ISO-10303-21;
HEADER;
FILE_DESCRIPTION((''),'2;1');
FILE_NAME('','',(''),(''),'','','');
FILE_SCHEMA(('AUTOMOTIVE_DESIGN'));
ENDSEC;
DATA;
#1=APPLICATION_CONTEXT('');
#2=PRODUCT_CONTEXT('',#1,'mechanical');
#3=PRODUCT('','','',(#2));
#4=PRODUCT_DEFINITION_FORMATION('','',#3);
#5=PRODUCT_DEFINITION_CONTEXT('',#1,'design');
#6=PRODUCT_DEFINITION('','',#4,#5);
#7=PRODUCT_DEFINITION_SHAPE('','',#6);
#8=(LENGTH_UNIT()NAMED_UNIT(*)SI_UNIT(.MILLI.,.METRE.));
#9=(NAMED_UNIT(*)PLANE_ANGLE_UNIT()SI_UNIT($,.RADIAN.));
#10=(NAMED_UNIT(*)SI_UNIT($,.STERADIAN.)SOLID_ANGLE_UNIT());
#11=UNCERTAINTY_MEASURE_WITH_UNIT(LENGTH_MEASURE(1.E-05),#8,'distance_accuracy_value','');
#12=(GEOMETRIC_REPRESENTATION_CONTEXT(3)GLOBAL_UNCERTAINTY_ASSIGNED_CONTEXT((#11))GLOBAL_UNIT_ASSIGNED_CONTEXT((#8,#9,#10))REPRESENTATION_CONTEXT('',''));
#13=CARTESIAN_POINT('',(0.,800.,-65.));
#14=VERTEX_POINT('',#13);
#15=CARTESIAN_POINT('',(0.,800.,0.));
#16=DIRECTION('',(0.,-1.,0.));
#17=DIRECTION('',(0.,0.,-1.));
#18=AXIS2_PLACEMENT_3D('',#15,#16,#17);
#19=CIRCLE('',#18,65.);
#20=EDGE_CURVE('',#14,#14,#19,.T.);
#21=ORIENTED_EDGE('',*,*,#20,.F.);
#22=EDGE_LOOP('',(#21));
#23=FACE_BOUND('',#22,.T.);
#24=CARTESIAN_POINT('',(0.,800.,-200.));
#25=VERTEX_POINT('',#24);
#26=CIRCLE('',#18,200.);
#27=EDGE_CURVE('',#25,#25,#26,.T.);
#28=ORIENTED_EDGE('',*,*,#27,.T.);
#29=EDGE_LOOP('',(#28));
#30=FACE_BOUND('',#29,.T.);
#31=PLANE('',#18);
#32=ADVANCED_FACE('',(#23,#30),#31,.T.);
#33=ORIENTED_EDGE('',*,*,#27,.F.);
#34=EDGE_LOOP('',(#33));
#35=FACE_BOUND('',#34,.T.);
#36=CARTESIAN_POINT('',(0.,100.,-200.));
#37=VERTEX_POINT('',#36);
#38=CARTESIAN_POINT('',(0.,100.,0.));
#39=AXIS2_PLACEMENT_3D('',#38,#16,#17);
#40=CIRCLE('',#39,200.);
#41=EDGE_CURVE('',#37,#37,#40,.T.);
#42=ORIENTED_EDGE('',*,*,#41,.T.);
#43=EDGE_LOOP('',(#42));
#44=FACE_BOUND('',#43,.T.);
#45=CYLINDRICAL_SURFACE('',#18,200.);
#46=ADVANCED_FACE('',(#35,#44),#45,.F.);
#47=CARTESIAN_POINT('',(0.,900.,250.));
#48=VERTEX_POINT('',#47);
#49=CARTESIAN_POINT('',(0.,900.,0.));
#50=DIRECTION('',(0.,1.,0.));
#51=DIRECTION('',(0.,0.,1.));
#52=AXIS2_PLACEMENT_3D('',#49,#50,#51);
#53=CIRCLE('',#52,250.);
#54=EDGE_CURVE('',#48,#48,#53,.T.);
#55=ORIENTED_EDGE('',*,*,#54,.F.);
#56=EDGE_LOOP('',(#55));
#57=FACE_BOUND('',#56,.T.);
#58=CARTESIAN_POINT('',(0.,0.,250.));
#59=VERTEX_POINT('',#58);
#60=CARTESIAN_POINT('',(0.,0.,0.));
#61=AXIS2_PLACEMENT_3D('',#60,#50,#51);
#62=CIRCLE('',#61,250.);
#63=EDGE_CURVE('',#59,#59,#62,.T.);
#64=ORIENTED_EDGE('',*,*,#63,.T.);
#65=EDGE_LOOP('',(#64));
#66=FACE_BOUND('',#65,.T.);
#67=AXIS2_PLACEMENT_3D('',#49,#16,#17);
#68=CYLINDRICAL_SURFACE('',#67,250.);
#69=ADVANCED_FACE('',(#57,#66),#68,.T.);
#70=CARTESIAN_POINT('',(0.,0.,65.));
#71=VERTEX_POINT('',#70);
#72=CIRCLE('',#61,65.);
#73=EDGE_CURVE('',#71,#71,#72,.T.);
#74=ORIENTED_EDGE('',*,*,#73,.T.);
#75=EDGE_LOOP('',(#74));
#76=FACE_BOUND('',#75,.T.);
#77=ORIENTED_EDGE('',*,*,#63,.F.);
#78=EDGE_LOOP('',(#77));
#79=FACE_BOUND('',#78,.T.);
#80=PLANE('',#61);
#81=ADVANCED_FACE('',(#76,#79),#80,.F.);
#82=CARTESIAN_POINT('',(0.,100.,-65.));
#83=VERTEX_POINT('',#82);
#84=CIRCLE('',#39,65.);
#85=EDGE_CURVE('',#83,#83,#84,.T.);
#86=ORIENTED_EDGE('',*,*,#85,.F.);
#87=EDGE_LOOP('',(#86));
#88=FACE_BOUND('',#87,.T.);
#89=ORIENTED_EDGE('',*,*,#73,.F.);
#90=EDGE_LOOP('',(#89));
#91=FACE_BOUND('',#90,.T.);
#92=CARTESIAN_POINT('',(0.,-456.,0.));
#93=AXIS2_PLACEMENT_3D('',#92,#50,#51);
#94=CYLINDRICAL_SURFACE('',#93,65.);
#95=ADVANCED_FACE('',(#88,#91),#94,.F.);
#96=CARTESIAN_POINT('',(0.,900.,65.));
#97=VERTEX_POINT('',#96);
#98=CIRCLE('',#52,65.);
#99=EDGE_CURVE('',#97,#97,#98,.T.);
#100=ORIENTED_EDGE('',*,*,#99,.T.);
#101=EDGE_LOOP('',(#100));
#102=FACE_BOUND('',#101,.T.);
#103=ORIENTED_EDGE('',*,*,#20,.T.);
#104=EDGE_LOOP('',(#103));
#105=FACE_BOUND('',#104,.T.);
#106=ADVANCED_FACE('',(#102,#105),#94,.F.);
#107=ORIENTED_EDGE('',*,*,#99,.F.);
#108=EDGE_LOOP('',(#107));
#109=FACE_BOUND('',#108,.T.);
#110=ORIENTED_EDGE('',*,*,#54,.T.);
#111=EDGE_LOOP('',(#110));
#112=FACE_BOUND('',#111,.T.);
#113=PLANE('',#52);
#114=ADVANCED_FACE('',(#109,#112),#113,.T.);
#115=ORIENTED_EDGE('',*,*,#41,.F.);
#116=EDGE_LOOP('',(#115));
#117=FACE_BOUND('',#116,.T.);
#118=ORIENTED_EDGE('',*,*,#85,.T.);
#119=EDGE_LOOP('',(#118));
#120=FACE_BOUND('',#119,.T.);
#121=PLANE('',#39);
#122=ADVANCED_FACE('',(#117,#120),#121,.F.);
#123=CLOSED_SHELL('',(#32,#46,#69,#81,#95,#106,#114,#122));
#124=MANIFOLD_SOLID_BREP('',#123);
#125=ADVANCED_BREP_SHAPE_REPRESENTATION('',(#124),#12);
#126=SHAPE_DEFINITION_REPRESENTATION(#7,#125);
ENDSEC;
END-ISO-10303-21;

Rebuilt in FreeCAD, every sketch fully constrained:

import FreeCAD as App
import Part
import Sketcher

doc = App.newDocument("Part")
params = doc.addObject("Spreadsheet::Sheet", "Params")
for row, (alias, value) in enumerate([
    ("sketch1_diameter", "500 mm"),
    ("pad1_length", "900 mm"),
    ("sketch2_diameter", "400 mm"),
    ("pocket1_length", "700 mm"),
    ("sketch3_diameter", "130 mm"),
    ("pocket2_length", "1356 mm"),
], start=1):
    params.set(f"A{row}", alias)
    params.set(f"B{row}", "=" + value)
    params.setAlias(f"B{row}", alias)

body = doc.addObject("PartDesign::Body", "Body")

# Sketch on XZ plane
sketch1 = body.newObject("Sketcher::SketchObject", "Sketch")
sketch1.AttachmentSupport = (doc.getObject("XZ_Plane"), [""])
sketch1.MapMode = "FlatFace"
sketch1.addGeometry(Part.Circle(App.Vector(0, 0, 0), App.Vector(0, 0, 1), 250), False)
sketch1.addConstraint([
    Sketcher.Constraint("Coincident", 0, 3, -1, 1),
    Sketcher.Constraint("Diameter", 0, 500.0),
])
sketch1.setExpression("Constraints[1]", "Params.sketch1_diameter")
pad1 = body.newObject("PartDesign::Pad", "Pad")
pad1.Profile = sketch1
pad1.setExpression("Length", "Params.pad1_length")
pad1.Reversed = True

# Sketch on XZ plane
sketch2 = body.newObject("Sketcher::SketchObject", "Sketch001")
sketch2.AttachmentSupport = (doc.getObject("XZ_Plane"), [""])
sketch2.MapMode = "FlatFace"
sketch2.AttachmentOffset = App.Placement(App.Vector(0, 0, -100), App.Rotation())
sketch2.addGeometry(Part.Circle(App.Vector(0, 0, 0), App.Vector(0, 0, 1), 200), False)
sketch2.addConstraint([
    Sketcher.Constraint("Coincident", 0, 3, -1, 1),
    Sketcher.Constraint("Diameter", 0, 400.0),
])
sketch2.setExpression("Constraints[1]", "Params.sketch2_diameter")
pocket1 = body.newObject("PartDesign::Pocket", "Pocket")
pocket1.Profile = sketch2
pocket1.setExpression("Length", "Params.pocket1_length")

# Sketch on XZ plane
sketch3 = body.newObject("Sketcher::SketchObject", "Sketch002")
sketch3.AttachmentSupport = (doc.getObject("XZ_Plane"), [""])
sketch3.MapMode = "FlatFace"
sketch3.AttachmentOffset = App.Placement(App.Vector(0, 0, -900), App.Rotation())
sketch3.addGeometry(Part.Circle(App.Vector(0, 0, 0), App.Vector(0, 0, 1), 65), False)
sketch3.addConstraint([
    Sketcher.Constraint("Coincident", 0, 3, -1, 1),
    Sketcher.Constraint("Diameter", 0, 130.0),
])
sketch3.setExpression("Constraints[1]", "Params.sketch3_diameter")
pocket2 = body.newObject("PartDesign::Pocket", "Pocket001")
pocket2.Profile = sketch3
pocket2.setExpression("Length", "Params.pocket2_length")
pocket2.Reversed = True

doc.recompute()
